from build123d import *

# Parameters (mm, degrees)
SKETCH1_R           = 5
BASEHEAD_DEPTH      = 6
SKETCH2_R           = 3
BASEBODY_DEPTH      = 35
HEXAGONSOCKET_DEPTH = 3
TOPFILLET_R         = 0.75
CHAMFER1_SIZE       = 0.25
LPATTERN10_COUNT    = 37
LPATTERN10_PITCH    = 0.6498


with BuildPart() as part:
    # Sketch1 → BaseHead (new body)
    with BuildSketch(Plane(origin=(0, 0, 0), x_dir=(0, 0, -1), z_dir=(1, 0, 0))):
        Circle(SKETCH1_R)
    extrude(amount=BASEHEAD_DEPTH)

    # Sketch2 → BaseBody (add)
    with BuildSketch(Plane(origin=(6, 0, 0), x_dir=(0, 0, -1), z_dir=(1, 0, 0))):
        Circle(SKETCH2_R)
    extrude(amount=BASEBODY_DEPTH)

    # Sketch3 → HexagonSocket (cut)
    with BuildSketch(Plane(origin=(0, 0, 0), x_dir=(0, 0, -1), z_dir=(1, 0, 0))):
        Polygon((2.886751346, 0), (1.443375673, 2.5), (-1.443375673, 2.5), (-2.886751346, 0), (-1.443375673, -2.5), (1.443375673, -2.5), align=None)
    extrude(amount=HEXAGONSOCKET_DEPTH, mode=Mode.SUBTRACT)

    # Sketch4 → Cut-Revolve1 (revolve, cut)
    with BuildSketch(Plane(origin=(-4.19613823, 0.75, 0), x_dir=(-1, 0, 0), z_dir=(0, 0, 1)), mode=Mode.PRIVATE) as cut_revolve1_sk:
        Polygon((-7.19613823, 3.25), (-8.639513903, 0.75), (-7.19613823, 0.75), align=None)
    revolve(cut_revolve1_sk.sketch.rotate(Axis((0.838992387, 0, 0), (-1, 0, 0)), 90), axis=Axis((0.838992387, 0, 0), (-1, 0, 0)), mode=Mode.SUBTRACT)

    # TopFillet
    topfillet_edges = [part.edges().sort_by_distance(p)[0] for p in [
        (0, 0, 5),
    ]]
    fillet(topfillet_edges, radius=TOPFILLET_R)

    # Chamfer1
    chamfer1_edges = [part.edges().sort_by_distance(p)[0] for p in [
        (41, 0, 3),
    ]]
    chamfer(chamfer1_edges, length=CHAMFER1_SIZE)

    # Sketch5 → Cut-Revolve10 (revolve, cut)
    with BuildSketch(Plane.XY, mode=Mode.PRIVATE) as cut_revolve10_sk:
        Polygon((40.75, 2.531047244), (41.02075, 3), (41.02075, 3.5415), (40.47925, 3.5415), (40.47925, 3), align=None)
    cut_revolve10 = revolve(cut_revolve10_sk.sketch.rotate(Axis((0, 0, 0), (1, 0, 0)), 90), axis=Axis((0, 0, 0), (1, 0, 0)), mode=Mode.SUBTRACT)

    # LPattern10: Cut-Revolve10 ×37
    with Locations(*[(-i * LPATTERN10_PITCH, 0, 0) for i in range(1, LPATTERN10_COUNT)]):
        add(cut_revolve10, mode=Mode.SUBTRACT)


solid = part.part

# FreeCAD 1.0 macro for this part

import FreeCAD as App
import Part
import Sketcher

V = App.Vector
Q = App.Units.Quantity


def edges_at(feature, points):
    """Names of the edges that pass closest to the given points."""
    edges = feature.Shape.Edges
    near = lambda p: min(range(len(edges)), key=lambda i: edges[i].distToShape(Part.Vertex(*p))[0])
    return sorted({f"Edge{near(p) + 1}" for p in points})


def add_polygon(sketch, points):
    """Adds a closed chain of lines whose ends are joined by coincident constraints."""
    first, n = sketch.GeometryCount, len(points)
    for a, b in zip(points, points[1:] + points[:1]):
        sketch.addGeometry(Part.LineSegment(App.Vector(*a, 0), App.Vector(*b, 0)), False)
    for i in range(n):
        sketch.addConstraint(Sketcher.Constraint("Coincident", first + i, 2, first + (i + 1) % n, 1))

doc = App.newDocument("Part")
body = doc.addObject("PartDesign::Body", "Body")

# Sketch on YZ plane
sketch1 = body.newObject("Sketcher::SketchObject", "Sketch")
sketch1.AttachmentSupport = (doc.getObject("YZ_Plane"), [""])
sketch1.MapMode = "FlatFace"
sketch1.addGeometry(Part.Circle(V(0, 0, 0), V(0, 0, 1), 5), False)
sketch1.addConstraint([
    Sketcher.Constraint("Coincident", 0, 3, -1, 1),
    Sketcher.Constraint("Diameter", 0, Q("10 mm")),
])
pad1 = body.newObject("PartDesign::Pad", "Pad")
pad1.Profile = sketch1
pad1.Length = 6

# Sketch on YZ plane
sketch2 = body.newObject("Sketcher::SketchObject", "Sketch001")
sketch2.AttachmentSupport = (doc.getObject("YZ_Plane"), [""])
sketch2.MapMode = "FlatFace"
sketch2.AttachmentOffset = App.Placement(V(0, 0, 6), App.Rotation())
sketch2.addGeometry(Part.Circle(V(0, 0, 0), V(0, 0, 1), 3), False)
sketch2.addConstraint([
    Sketcher.Constraint("Coincident", 0, 3, -1, 1),
    Sketcher.Constraint("Diameter", 0, Q("6 mm")),
])
pad2 = body.newObject("PartDesign::Pad", "Pad001")
pad2.Profile = sketch2
pad2.Length = 35

# Sketch on YZ plane
sketch3 = body.newObject("Sketcher::SketchObject", "Sketch002")
sketch3.AttachmentSupport = (doc.getObject("YZ_Plane"), [""])
sketch3.MapMode = "FlatFace"
add_polygon(sketch3, [(0, -2.9), (2.5, -1.4), (2.5, 1.4), (0, 2.9), (-2.5, 1.4), (-2.5, -1.4)])  # lines 0-5
sketch3.addConstraint([
    Sketcher.Constraint("Vertical", 1),
    Sketcher.Constraint("Vertical", 4),
    Sketcher.Constraint("Symmetric", 0, 2, 3, 2, -1, 1),
    Sketcher.Constraint("Symmetric", 2, 2, 5, 2, -1, 1),
    Sketcher.Constraint("PointOnObject", 2, 2, -2),
    Sketcher.Constraint("Parallel", 2, 5),
    Sketcher.Constraint("Horizontal", 1, 2, 3, 2),
    Sketcher.Constraint("Angle", 0, Q("30 deg")),
    Sketcher.Constraint("DistanceX", 3, 2, 1, 2, Q("5 mm")),
    Sketcher.Constraint("DistanceY", 1, 1, 1, 2, Q("2.886751 mm")),
])
pocket1 = body.newObject("PartDesign::Pocket", "Pocket")
pocket1.Profile = sketch3
pocket1.Length = 3
pocket1.Reversed = True

# Sketch on XY plane
sketch4 = body.newObject("Sketcher::SketchObject", "Sketch003")
sketch4.AttachmentSupport = (doc.getObject("XY_Plane"), [""])
sketch4.MapMode = "FlatFace"
add_polygon(sketch4, [(3, -2.5), (4.4, 0), (3, 0)])  # lines 0-2
sketch4.addConstraint([
    Sketcher.Constraint("Horizontal", 1),
    Sketcher.Constraint("Vertical", 2),
    Sketcher.Constraint("PointOnObject", 0, 2, -1),
    Sketcher.Constraint("Angle", 0, Q("60 deg")),
    Sketcher.Constraint("DistanceY", 2, 2, 2, 1, Q("2.5 mm")),
    Sketcher.Constraint("DistanceX", -1, 1, 1, 2, Q("3 mm")),
])
groove = body.newObject("PartDesign::Groove", "Groove")
groove.Profile = sketch4
groove.ReferenceAxis = (sketch4, ["H_Axis"])
groove.Angle = 360
doc.recompute()

fillet = body.newObject("PartDesign::Fillet", "Fillet")
fillet.Base = (groove, edges_at(groove, [(0, 0, 5)]))
fillet.Radius = 0.75
doc.recompute()

chamfer = body.newObject("PartDesign::Chamfer", "Chamfer")
chamfer.Base = (fillet, edges_at(fillet, [(41, 0, 3)]))
chamfer.Size = 0.25

# Sketch on XY plane
sketch5 = body.newObject("Sketcher::SketchObject", "Sketch004")
sketch5.AttachmentSupport = (doc.getObject("XY_Plane"), [""])
sketch5.MapMode = "FlatFace"
add_polygon(sketch5, [(40.8, 2.5), (41, 3), (41, 3.5), (40.5, 3.5), (40.5, 3)])  # lines 0-4
sketch5.addConstraint([
    Sketcher.Constraint("Vertical", 1),
    Sketcher.Constraint("Horizontal", 2),
    Sketcher.Constraint("Vertical", 3),
    Sketcher.Constraint("Horizontal", 0, 2, 3, 2),
    Sketcher.Constraint("Equal", 2, 1),
    Sketcher.Constraint("Equal", 0, 4),
    Sketcher.Constraint("Angle", 0, Q("60 deg")),
    Sketcher.Constraint("DistanceY", -1, 1, 0, 2, Q("3 mm")),
    Sketcher.Constraint("DistanceX", -1, 1, 4, 2, Q("40.75 mm")),
    Sketcher.Constraint("DistanceX", 2, 2, 2, 1, Q("0.5415 mm")),
])
groove2 = body.newObject("PartDesign::Groove", "Groove001")
groove2.Profile = sketch5
groove2.ReferenceAxis = (sketch5, ["H_Axis"])
groove2.Angle = 360
doc.recompute()

linearpattern = body.newObject("PartDesign::LinearPattern", "LinearPattern")
linearpattern.Originals = [groove2]
linearpattern.Direction = (doc.getObject("X_Axis"), [""])
linearpattern.Mode = "offset"
linearpattern.Offset = 0.6498
linearpattern.Occurrences = 37
linearpattern.Reversed = True
body.Tip = linearpattern

doc.recompute()
